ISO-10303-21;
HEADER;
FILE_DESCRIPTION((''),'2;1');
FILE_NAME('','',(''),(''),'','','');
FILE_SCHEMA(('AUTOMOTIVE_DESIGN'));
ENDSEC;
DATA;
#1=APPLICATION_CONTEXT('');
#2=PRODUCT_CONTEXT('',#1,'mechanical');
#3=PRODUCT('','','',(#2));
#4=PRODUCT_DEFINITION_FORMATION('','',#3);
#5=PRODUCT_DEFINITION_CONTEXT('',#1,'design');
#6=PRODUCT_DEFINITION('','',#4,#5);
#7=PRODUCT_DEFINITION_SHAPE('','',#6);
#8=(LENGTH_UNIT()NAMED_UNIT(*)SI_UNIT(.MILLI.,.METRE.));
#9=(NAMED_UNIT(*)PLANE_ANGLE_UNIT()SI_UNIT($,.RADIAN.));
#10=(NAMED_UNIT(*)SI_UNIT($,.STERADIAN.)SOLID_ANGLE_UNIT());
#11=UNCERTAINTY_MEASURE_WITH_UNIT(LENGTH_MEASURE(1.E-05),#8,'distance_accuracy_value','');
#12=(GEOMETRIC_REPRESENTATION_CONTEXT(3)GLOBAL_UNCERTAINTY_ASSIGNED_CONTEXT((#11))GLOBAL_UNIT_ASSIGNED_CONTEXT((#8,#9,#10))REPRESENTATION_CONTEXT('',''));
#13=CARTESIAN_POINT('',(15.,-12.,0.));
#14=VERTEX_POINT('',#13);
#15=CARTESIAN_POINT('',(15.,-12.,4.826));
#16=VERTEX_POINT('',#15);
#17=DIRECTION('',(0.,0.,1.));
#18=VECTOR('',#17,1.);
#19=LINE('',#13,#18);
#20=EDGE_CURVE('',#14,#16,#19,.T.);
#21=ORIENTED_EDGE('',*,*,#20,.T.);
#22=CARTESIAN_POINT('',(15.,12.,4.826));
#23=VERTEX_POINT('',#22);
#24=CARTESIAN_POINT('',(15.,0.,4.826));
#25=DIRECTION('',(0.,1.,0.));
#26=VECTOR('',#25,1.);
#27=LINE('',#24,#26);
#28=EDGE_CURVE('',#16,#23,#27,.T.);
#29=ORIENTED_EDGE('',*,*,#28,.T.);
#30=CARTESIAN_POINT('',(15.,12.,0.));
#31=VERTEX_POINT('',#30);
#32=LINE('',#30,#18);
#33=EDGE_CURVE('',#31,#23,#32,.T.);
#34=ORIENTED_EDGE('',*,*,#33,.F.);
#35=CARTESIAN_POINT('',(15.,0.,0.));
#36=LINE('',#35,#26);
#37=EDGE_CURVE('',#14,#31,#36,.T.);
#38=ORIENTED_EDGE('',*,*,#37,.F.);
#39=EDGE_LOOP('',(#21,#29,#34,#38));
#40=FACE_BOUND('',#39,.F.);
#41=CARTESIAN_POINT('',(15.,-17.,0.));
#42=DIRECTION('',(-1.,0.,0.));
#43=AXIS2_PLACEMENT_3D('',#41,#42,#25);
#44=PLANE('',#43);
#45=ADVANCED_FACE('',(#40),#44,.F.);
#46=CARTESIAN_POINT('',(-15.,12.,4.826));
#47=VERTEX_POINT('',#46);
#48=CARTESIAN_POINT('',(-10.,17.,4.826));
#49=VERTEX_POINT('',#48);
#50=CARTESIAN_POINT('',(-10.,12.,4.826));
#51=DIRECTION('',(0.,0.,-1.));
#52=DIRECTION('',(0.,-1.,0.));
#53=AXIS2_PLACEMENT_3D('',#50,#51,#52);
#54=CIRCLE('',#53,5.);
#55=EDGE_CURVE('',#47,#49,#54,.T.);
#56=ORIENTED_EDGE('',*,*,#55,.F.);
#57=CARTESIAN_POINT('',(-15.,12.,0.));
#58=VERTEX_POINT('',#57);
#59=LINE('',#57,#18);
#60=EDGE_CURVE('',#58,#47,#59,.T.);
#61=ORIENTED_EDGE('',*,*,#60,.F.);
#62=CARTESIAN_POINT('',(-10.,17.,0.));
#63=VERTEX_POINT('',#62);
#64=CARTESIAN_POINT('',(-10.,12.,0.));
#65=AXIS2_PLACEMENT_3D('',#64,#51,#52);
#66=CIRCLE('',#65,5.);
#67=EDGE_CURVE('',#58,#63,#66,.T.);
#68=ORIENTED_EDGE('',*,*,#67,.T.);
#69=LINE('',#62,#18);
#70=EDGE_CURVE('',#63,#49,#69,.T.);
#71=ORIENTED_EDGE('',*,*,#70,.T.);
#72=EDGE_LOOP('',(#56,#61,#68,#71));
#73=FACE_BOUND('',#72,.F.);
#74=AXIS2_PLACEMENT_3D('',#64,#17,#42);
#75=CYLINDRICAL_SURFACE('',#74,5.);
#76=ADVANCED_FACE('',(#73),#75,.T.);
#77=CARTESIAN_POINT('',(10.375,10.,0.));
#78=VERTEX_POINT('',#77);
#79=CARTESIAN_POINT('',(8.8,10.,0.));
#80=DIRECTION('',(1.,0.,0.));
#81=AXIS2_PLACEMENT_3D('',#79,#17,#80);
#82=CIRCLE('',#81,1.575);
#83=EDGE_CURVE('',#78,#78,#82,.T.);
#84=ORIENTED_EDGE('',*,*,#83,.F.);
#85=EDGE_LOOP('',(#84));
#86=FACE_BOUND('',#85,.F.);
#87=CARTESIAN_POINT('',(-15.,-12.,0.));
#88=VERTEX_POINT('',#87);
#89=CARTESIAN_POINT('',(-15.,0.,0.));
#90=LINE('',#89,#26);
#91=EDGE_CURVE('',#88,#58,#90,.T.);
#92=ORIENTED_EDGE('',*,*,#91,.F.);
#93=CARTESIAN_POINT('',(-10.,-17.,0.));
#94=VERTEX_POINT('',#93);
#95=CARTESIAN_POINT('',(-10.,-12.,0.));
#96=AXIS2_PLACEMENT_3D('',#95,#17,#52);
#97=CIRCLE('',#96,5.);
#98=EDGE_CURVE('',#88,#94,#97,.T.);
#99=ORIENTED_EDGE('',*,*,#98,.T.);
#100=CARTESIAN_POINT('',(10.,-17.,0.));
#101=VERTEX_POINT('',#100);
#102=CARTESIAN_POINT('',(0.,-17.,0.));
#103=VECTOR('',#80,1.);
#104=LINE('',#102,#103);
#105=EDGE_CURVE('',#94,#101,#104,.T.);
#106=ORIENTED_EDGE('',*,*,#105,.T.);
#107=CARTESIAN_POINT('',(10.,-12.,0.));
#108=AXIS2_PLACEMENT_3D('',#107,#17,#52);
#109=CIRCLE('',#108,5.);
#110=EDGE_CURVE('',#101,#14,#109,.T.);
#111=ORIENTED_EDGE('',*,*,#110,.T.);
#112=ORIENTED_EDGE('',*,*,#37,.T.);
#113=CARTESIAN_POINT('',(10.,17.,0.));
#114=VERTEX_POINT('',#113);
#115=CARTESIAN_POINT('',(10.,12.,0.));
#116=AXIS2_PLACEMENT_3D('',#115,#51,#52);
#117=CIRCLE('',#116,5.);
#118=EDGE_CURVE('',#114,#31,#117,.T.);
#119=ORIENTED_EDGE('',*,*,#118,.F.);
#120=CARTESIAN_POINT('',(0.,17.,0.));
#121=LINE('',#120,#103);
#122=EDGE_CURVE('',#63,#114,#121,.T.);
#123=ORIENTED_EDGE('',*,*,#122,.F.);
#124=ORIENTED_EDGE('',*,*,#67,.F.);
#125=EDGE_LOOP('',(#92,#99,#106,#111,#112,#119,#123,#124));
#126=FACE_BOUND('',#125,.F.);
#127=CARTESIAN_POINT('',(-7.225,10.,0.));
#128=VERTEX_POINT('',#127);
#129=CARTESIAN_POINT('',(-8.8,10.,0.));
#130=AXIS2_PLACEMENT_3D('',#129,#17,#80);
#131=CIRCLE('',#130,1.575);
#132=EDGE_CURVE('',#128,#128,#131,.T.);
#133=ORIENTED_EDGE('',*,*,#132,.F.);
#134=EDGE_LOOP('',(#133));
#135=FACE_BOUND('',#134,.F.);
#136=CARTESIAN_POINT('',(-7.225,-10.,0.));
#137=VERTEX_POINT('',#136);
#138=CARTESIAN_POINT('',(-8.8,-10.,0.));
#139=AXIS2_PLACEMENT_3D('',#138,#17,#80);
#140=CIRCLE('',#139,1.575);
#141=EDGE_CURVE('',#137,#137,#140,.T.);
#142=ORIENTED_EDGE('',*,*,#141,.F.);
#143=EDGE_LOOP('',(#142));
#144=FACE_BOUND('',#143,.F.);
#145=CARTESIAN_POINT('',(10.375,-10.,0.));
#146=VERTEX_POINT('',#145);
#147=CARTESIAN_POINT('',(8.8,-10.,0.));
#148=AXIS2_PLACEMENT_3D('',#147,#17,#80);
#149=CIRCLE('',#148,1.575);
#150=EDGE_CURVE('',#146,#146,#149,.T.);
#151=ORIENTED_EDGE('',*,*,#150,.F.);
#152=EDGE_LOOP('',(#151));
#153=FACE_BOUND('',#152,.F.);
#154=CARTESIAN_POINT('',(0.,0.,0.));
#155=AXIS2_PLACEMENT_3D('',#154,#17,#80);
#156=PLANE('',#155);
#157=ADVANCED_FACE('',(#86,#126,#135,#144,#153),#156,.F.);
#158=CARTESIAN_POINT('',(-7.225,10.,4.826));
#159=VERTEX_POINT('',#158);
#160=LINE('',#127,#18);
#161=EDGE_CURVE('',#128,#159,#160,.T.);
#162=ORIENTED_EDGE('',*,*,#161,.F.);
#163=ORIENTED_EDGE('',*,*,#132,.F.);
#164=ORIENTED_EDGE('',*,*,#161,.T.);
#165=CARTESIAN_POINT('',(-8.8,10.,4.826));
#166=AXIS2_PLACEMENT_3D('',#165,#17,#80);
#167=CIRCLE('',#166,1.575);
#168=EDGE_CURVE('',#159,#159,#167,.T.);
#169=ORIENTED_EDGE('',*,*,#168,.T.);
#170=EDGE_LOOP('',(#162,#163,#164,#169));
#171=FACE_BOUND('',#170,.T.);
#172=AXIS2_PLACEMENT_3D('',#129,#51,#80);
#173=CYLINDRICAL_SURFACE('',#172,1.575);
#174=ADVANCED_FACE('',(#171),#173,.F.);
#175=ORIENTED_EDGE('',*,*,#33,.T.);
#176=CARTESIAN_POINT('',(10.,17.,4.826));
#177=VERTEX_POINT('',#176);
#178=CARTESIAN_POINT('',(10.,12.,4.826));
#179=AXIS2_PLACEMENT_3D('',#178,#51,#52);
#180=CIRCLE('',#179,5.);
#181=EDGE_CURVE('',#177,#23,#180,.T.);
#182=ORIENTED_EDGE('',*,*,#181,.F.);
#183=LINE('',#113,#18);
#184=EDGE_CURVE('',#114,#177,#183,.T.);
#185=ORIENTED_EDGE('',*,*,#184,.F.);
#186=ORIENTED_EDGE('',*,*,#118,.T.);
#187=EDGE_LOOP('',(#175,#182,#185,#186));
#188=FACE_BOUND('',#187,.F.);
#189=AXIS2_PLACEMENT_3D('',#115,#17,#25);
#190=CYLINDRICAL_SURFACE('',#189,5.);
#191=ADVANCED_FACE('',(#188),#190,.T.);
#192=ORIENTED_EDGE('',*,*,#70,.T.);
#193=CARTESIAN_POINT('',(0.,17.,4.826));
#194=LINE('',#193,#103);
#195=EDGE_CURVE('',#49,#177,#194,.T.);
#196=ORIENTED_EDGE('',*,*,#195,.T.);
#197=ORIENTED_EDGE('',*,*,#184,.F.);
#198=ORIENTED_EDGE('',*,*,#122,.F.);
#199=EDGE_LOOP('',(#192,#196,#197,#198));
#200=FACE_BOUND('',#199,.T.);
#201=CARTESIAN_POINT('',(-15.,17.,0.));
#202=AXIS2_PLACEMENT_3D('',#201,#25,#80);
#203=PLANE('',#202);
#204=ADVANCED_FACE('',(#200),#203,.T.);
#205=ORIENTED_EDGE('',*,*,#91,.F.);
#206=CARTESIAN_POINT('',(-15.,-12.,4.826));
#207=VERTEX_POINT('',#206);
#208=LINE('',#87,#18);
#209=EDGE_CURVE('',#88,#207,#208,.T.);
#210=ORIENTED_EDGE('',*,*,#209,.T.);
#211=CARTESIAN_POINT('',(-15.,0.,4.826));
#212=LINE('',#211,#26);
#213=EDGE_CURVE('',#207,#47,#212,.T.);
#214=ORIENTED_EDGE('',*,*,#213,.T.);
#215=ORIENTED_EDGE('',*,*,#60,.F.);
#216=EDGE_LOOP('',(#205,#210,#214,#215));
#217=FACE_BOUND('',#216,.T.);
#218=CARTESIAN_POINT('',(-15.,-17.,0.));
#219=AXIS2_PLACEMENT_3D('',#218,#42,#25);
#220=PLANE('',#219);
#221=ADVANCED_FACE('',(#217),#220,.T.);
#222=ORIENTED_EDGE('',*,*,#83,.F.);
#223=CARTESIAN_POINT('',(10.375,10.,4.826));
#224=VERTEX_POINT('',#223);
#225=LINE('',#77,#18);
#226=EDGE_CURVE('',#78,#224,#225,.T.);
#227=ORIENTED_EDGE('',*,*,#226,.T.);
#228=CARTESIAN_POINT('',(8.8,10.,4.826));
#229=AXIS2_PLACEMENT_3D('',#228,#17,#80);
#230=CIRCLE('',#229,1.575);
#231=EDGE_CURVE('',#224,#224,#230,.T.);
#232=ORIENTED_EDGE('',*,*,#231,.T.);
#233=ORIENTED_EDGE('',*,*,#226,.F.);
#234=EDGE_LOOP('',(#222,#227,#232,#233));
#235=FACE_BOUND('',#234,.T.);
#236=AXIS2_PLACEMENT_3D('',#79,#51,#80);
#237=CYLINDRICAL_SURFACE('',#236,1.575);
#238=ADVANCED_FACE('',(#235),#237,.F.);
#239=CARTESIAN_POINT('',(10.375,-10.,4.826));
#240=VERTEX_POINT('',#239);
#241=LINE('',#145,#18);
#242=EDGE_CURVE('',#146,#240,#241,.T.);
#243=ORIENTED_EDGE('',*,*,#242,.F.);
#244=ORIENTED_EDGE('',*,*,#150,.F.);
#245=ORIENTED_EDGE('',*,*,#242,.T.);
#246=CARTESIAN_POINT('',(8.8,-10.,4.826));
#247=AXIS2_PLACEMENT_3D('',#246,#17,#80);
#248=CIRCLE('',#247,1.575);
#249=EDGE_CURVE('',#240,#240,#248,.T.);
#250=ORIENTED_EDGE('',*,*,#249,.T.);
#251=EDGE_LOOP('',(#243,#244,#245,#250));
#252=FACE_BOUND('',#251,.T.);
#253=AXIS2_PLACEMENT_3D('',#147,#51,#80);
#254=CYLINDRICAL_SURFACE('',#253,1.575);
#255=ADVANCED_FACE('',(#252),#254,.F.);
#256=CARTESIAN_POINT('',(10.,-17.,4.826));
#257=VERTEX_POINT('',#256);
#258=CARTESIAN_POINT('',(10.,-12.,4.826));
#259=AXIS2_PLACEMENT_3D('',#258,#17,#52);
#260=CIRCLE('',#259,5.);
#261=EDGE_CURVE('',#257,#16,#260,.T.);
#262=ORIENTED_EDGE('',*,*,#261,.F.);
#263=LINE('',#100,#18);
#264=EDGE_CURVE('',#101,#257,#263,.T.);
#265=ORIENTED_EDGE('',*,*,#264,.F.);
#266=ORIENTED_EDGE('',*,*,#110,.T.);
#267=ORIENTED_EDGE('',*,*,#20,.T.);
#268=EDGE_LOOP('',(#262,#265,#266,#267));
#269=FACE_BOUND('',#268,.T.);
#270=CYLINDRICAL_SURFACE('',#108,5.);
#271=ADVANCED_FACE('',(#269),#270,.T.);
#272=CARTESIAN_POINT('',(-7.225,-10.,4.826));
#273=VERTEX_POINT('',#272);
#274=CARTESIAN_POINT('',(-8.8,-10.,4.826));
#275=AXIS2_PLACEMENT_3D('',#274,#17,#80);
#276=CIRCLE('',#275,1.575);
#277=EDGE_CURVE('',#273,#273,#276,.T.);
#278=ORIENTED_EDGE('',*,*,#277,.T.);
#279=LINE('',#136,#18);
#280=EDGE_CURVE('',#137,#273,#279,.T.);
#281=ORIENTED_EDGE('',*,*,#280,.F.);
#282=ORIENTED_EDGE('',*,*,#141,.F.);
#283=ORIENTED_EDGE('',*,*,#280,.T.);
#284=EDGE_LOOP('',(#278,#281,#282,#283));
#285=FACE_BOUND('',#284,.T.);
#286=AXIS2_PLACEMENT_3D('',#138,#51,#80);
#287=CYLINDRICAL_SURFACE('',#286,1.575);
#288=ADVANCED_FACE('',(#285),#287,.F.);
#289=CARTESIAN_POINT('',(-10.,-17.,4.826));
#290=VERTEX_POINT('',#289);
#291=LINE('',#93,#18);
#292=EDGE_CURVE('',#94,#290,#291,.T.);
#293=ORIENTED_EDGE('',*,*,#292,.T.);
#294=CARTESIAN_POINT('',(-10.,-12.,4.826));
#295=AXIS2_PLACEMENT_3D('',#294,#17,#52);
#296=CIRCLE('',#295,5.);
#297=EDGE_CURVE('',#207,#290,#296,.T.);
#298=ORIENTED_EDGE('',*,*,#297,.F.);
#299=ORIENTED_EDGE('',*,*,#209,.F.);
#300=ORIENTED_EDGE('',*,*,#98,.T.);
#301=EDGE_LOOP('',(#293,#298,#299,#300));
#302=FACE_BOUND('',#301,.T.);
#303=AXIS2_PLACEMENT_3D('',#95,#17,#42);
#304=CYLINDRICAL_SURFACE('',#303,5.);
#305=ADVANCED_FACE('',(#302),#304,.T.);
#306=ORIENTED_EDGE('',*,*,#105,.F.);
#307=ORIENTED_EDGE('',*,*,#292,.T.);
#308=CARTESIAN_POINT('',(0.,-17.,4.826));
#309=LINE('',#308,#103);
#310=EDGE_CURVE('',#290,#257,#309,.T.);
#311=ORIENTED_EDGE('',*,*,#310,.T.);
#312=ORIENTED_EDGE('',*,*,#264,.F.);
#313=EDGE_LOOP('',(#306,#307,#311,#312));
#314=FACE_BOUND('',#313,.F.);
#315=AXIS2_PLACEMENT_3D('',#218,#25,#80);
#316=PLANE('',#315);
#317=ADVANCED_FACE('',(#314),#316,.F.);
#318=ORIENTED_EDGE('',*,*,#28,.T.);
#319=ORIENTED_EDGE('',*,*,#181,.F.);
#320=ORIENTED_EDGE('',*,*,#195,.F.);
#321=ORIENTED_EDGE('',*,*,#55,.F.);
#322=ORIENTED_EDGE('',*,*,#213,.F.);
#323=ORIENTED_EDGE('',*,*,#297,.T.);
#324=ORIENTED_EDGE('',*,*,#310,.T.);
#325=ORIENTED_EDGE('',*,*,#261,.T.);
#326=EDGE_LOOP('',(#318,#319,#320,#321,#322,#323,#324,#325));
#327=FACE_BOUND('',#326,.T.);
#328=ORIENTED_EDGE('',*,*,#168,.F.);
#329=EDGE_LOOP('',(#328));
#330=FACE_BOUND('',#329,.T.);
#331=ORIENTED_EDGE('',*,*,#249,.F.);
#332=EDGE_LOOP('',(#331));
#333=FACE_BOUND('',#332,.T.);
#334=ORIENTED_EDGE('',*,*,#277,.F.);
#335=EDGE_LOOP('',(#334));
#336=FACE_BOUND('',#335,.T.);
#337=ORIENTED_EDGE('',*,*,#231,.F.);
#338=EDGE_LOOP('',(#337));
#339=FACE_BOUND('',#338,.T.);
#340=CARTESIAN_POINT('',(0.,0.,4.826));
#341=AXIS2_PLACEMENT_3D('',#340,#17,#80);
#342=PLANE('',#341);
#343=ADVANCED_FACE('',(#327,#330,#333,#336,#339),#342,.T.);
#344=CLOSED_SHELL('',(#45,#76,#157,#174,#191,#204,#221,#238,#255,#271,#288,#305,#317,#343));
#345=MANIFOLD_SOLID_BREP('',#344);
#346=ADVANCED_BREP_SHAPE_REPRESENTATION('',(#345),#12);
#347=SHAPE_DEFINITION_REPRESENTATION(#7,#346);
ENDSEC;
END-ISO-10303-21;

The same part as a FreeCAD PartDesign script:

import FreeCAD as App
import Part
import Sketcher

V = App.Vector
Q = App.Units.Quantity


def edges_at(feature, points):
    """Names of the edges that pass closest to the given points."""
    edges = feature.Shape.Edges
    near = lambda p: min(range(len(edges)), key=lambda i: edges[i].distToShape(Part.Vertex(*p))[0])
    return sorted({f"Edge{near(p) + 1}" for p in points})

doc = App.newDocument("Part")
body = doc.addObject("PartDesign::Body", "Body")

sketch1 = body.newObject("Sketcher::SketchObject", "Sketch")
sketch1.AttachmentSupport = (doc.getObject("XY_Plane"), [""])
sketch1.MapMode = "FlatFace"
sketch1.addGeometry(Part.LineSegment(V(-15, 17, 0), V(-15, -17, 0)), False)
sketch1.addGeometry(Part.LineSegment(V(-15, -17, 0), V(15, -17, 0)), False)
sketch1.addGeometry(Part.LineSegment(V(15, -17, 0), V(15, 17, 0)), False)
sketch1.addGeometry(Part.LineSegment(V(15, 17, 0), V(-15, 17, 0)), False)
sketch1.addGeometry(Part.Circle(V(-8.8, -10, 0), V(0, 0, 1), 1.6), False)
sketch1.addGeometry(Part.Circle(V(8.8, -10, 0), V(0, 0, 1), 1.6), False)
sketch1.addGeometry(Part.Circle(V(-8.8, 10, 0), V(0, 0, 1), 1.6), False)
sketch1.addGeometry(Part.Circle(V(8.8, 10, 0), V(0, 0, 1), 1.6), False)
sketch1.addConstraint(Sketcher.Constraint("Coincident", 0, 2, 1, 1))
sketch1.addConstraint(Sketcher.Constraint("Coincident", 1, 2, 2, 1))
sketch1.addConstraint(Sketcher.Constraint("Coincident", 2, 2, 3, 1))
sketch1.addConstraint(Sketcher.Constraint("Coincident", 3, 2, 0, 1))
sketch1.addConstraint(Sketcher.Constraint("Vertical", 0))
sketch1.addConstraint(Sketcher.Constraint("Horizontal", 1))
sketch1.addConstraint(Sketcher.Constraint("Vertical", 2))
sketch1.addConstraint(Sketcher.Constraint("Horizontal", 3))
sketch1.addConstraint(Sketcher.Constraint("Equal", 4, 5))
sketch1.addConstraint(Sketcher.Constraint("Equal", 5, 6))
sketch1.addConstraint(Sketcher.Constraint("Equal", 6, 7))
sketch1.addConstraint(Sketcher.Constraint("Symmetric", 5, 3, 6, 3, -1, 1))
sketch1.addConstraint(Sketcher.Constraint("Symmetric", 4, 3, 7, 3, -1, 1))
sketch1.addConstraint(Sketcher.Constraint("Symmetric", 0, 2, 2, 2, -1, 1))
sketch1.addConstraint(Sketcher.Constraint("Symmetric", 4, 3, 5, 3, -2))
sketch1.addConstraint(Sketcher.Constraint("Diameter", 4, Q("3.15 mm")))
sketch1.addConstraint(Sketcher.Constraint("DistanceX", 1, 1, 1, 2, Q("30 mm")))
sketch1.addConstraint(Sketcher.Constraint("DistanceY", 0, 2, 0, 1, Q("34 mm")))
sketch1.addConstraint(Sketcher.Constraint("DistanceY", 4, 3, -1, 1, Q("10 mm")))
sketch1.addConstraint(Sketcher.Constraint("DistanceX", 4, 3, -1, 1, Q("8.8 mm")))
pad1 = body.newObject("PartDesign::Pad", "Pad")
pad1.Profile = sketch1
pad1.Length = 4.826
doc.recompute()

fillet = body.newObject("PartDesign::Fillet", "Fillet")
fillet.Base = (pad1, edges_at(pad1, [
    (-15, -17, 2.413),
    (15, -17, 2.413),
    (-15, 17, 2.413),
    (15, 17, 2.413),
]))
fillet.Radius = 5

doc.recompute()
